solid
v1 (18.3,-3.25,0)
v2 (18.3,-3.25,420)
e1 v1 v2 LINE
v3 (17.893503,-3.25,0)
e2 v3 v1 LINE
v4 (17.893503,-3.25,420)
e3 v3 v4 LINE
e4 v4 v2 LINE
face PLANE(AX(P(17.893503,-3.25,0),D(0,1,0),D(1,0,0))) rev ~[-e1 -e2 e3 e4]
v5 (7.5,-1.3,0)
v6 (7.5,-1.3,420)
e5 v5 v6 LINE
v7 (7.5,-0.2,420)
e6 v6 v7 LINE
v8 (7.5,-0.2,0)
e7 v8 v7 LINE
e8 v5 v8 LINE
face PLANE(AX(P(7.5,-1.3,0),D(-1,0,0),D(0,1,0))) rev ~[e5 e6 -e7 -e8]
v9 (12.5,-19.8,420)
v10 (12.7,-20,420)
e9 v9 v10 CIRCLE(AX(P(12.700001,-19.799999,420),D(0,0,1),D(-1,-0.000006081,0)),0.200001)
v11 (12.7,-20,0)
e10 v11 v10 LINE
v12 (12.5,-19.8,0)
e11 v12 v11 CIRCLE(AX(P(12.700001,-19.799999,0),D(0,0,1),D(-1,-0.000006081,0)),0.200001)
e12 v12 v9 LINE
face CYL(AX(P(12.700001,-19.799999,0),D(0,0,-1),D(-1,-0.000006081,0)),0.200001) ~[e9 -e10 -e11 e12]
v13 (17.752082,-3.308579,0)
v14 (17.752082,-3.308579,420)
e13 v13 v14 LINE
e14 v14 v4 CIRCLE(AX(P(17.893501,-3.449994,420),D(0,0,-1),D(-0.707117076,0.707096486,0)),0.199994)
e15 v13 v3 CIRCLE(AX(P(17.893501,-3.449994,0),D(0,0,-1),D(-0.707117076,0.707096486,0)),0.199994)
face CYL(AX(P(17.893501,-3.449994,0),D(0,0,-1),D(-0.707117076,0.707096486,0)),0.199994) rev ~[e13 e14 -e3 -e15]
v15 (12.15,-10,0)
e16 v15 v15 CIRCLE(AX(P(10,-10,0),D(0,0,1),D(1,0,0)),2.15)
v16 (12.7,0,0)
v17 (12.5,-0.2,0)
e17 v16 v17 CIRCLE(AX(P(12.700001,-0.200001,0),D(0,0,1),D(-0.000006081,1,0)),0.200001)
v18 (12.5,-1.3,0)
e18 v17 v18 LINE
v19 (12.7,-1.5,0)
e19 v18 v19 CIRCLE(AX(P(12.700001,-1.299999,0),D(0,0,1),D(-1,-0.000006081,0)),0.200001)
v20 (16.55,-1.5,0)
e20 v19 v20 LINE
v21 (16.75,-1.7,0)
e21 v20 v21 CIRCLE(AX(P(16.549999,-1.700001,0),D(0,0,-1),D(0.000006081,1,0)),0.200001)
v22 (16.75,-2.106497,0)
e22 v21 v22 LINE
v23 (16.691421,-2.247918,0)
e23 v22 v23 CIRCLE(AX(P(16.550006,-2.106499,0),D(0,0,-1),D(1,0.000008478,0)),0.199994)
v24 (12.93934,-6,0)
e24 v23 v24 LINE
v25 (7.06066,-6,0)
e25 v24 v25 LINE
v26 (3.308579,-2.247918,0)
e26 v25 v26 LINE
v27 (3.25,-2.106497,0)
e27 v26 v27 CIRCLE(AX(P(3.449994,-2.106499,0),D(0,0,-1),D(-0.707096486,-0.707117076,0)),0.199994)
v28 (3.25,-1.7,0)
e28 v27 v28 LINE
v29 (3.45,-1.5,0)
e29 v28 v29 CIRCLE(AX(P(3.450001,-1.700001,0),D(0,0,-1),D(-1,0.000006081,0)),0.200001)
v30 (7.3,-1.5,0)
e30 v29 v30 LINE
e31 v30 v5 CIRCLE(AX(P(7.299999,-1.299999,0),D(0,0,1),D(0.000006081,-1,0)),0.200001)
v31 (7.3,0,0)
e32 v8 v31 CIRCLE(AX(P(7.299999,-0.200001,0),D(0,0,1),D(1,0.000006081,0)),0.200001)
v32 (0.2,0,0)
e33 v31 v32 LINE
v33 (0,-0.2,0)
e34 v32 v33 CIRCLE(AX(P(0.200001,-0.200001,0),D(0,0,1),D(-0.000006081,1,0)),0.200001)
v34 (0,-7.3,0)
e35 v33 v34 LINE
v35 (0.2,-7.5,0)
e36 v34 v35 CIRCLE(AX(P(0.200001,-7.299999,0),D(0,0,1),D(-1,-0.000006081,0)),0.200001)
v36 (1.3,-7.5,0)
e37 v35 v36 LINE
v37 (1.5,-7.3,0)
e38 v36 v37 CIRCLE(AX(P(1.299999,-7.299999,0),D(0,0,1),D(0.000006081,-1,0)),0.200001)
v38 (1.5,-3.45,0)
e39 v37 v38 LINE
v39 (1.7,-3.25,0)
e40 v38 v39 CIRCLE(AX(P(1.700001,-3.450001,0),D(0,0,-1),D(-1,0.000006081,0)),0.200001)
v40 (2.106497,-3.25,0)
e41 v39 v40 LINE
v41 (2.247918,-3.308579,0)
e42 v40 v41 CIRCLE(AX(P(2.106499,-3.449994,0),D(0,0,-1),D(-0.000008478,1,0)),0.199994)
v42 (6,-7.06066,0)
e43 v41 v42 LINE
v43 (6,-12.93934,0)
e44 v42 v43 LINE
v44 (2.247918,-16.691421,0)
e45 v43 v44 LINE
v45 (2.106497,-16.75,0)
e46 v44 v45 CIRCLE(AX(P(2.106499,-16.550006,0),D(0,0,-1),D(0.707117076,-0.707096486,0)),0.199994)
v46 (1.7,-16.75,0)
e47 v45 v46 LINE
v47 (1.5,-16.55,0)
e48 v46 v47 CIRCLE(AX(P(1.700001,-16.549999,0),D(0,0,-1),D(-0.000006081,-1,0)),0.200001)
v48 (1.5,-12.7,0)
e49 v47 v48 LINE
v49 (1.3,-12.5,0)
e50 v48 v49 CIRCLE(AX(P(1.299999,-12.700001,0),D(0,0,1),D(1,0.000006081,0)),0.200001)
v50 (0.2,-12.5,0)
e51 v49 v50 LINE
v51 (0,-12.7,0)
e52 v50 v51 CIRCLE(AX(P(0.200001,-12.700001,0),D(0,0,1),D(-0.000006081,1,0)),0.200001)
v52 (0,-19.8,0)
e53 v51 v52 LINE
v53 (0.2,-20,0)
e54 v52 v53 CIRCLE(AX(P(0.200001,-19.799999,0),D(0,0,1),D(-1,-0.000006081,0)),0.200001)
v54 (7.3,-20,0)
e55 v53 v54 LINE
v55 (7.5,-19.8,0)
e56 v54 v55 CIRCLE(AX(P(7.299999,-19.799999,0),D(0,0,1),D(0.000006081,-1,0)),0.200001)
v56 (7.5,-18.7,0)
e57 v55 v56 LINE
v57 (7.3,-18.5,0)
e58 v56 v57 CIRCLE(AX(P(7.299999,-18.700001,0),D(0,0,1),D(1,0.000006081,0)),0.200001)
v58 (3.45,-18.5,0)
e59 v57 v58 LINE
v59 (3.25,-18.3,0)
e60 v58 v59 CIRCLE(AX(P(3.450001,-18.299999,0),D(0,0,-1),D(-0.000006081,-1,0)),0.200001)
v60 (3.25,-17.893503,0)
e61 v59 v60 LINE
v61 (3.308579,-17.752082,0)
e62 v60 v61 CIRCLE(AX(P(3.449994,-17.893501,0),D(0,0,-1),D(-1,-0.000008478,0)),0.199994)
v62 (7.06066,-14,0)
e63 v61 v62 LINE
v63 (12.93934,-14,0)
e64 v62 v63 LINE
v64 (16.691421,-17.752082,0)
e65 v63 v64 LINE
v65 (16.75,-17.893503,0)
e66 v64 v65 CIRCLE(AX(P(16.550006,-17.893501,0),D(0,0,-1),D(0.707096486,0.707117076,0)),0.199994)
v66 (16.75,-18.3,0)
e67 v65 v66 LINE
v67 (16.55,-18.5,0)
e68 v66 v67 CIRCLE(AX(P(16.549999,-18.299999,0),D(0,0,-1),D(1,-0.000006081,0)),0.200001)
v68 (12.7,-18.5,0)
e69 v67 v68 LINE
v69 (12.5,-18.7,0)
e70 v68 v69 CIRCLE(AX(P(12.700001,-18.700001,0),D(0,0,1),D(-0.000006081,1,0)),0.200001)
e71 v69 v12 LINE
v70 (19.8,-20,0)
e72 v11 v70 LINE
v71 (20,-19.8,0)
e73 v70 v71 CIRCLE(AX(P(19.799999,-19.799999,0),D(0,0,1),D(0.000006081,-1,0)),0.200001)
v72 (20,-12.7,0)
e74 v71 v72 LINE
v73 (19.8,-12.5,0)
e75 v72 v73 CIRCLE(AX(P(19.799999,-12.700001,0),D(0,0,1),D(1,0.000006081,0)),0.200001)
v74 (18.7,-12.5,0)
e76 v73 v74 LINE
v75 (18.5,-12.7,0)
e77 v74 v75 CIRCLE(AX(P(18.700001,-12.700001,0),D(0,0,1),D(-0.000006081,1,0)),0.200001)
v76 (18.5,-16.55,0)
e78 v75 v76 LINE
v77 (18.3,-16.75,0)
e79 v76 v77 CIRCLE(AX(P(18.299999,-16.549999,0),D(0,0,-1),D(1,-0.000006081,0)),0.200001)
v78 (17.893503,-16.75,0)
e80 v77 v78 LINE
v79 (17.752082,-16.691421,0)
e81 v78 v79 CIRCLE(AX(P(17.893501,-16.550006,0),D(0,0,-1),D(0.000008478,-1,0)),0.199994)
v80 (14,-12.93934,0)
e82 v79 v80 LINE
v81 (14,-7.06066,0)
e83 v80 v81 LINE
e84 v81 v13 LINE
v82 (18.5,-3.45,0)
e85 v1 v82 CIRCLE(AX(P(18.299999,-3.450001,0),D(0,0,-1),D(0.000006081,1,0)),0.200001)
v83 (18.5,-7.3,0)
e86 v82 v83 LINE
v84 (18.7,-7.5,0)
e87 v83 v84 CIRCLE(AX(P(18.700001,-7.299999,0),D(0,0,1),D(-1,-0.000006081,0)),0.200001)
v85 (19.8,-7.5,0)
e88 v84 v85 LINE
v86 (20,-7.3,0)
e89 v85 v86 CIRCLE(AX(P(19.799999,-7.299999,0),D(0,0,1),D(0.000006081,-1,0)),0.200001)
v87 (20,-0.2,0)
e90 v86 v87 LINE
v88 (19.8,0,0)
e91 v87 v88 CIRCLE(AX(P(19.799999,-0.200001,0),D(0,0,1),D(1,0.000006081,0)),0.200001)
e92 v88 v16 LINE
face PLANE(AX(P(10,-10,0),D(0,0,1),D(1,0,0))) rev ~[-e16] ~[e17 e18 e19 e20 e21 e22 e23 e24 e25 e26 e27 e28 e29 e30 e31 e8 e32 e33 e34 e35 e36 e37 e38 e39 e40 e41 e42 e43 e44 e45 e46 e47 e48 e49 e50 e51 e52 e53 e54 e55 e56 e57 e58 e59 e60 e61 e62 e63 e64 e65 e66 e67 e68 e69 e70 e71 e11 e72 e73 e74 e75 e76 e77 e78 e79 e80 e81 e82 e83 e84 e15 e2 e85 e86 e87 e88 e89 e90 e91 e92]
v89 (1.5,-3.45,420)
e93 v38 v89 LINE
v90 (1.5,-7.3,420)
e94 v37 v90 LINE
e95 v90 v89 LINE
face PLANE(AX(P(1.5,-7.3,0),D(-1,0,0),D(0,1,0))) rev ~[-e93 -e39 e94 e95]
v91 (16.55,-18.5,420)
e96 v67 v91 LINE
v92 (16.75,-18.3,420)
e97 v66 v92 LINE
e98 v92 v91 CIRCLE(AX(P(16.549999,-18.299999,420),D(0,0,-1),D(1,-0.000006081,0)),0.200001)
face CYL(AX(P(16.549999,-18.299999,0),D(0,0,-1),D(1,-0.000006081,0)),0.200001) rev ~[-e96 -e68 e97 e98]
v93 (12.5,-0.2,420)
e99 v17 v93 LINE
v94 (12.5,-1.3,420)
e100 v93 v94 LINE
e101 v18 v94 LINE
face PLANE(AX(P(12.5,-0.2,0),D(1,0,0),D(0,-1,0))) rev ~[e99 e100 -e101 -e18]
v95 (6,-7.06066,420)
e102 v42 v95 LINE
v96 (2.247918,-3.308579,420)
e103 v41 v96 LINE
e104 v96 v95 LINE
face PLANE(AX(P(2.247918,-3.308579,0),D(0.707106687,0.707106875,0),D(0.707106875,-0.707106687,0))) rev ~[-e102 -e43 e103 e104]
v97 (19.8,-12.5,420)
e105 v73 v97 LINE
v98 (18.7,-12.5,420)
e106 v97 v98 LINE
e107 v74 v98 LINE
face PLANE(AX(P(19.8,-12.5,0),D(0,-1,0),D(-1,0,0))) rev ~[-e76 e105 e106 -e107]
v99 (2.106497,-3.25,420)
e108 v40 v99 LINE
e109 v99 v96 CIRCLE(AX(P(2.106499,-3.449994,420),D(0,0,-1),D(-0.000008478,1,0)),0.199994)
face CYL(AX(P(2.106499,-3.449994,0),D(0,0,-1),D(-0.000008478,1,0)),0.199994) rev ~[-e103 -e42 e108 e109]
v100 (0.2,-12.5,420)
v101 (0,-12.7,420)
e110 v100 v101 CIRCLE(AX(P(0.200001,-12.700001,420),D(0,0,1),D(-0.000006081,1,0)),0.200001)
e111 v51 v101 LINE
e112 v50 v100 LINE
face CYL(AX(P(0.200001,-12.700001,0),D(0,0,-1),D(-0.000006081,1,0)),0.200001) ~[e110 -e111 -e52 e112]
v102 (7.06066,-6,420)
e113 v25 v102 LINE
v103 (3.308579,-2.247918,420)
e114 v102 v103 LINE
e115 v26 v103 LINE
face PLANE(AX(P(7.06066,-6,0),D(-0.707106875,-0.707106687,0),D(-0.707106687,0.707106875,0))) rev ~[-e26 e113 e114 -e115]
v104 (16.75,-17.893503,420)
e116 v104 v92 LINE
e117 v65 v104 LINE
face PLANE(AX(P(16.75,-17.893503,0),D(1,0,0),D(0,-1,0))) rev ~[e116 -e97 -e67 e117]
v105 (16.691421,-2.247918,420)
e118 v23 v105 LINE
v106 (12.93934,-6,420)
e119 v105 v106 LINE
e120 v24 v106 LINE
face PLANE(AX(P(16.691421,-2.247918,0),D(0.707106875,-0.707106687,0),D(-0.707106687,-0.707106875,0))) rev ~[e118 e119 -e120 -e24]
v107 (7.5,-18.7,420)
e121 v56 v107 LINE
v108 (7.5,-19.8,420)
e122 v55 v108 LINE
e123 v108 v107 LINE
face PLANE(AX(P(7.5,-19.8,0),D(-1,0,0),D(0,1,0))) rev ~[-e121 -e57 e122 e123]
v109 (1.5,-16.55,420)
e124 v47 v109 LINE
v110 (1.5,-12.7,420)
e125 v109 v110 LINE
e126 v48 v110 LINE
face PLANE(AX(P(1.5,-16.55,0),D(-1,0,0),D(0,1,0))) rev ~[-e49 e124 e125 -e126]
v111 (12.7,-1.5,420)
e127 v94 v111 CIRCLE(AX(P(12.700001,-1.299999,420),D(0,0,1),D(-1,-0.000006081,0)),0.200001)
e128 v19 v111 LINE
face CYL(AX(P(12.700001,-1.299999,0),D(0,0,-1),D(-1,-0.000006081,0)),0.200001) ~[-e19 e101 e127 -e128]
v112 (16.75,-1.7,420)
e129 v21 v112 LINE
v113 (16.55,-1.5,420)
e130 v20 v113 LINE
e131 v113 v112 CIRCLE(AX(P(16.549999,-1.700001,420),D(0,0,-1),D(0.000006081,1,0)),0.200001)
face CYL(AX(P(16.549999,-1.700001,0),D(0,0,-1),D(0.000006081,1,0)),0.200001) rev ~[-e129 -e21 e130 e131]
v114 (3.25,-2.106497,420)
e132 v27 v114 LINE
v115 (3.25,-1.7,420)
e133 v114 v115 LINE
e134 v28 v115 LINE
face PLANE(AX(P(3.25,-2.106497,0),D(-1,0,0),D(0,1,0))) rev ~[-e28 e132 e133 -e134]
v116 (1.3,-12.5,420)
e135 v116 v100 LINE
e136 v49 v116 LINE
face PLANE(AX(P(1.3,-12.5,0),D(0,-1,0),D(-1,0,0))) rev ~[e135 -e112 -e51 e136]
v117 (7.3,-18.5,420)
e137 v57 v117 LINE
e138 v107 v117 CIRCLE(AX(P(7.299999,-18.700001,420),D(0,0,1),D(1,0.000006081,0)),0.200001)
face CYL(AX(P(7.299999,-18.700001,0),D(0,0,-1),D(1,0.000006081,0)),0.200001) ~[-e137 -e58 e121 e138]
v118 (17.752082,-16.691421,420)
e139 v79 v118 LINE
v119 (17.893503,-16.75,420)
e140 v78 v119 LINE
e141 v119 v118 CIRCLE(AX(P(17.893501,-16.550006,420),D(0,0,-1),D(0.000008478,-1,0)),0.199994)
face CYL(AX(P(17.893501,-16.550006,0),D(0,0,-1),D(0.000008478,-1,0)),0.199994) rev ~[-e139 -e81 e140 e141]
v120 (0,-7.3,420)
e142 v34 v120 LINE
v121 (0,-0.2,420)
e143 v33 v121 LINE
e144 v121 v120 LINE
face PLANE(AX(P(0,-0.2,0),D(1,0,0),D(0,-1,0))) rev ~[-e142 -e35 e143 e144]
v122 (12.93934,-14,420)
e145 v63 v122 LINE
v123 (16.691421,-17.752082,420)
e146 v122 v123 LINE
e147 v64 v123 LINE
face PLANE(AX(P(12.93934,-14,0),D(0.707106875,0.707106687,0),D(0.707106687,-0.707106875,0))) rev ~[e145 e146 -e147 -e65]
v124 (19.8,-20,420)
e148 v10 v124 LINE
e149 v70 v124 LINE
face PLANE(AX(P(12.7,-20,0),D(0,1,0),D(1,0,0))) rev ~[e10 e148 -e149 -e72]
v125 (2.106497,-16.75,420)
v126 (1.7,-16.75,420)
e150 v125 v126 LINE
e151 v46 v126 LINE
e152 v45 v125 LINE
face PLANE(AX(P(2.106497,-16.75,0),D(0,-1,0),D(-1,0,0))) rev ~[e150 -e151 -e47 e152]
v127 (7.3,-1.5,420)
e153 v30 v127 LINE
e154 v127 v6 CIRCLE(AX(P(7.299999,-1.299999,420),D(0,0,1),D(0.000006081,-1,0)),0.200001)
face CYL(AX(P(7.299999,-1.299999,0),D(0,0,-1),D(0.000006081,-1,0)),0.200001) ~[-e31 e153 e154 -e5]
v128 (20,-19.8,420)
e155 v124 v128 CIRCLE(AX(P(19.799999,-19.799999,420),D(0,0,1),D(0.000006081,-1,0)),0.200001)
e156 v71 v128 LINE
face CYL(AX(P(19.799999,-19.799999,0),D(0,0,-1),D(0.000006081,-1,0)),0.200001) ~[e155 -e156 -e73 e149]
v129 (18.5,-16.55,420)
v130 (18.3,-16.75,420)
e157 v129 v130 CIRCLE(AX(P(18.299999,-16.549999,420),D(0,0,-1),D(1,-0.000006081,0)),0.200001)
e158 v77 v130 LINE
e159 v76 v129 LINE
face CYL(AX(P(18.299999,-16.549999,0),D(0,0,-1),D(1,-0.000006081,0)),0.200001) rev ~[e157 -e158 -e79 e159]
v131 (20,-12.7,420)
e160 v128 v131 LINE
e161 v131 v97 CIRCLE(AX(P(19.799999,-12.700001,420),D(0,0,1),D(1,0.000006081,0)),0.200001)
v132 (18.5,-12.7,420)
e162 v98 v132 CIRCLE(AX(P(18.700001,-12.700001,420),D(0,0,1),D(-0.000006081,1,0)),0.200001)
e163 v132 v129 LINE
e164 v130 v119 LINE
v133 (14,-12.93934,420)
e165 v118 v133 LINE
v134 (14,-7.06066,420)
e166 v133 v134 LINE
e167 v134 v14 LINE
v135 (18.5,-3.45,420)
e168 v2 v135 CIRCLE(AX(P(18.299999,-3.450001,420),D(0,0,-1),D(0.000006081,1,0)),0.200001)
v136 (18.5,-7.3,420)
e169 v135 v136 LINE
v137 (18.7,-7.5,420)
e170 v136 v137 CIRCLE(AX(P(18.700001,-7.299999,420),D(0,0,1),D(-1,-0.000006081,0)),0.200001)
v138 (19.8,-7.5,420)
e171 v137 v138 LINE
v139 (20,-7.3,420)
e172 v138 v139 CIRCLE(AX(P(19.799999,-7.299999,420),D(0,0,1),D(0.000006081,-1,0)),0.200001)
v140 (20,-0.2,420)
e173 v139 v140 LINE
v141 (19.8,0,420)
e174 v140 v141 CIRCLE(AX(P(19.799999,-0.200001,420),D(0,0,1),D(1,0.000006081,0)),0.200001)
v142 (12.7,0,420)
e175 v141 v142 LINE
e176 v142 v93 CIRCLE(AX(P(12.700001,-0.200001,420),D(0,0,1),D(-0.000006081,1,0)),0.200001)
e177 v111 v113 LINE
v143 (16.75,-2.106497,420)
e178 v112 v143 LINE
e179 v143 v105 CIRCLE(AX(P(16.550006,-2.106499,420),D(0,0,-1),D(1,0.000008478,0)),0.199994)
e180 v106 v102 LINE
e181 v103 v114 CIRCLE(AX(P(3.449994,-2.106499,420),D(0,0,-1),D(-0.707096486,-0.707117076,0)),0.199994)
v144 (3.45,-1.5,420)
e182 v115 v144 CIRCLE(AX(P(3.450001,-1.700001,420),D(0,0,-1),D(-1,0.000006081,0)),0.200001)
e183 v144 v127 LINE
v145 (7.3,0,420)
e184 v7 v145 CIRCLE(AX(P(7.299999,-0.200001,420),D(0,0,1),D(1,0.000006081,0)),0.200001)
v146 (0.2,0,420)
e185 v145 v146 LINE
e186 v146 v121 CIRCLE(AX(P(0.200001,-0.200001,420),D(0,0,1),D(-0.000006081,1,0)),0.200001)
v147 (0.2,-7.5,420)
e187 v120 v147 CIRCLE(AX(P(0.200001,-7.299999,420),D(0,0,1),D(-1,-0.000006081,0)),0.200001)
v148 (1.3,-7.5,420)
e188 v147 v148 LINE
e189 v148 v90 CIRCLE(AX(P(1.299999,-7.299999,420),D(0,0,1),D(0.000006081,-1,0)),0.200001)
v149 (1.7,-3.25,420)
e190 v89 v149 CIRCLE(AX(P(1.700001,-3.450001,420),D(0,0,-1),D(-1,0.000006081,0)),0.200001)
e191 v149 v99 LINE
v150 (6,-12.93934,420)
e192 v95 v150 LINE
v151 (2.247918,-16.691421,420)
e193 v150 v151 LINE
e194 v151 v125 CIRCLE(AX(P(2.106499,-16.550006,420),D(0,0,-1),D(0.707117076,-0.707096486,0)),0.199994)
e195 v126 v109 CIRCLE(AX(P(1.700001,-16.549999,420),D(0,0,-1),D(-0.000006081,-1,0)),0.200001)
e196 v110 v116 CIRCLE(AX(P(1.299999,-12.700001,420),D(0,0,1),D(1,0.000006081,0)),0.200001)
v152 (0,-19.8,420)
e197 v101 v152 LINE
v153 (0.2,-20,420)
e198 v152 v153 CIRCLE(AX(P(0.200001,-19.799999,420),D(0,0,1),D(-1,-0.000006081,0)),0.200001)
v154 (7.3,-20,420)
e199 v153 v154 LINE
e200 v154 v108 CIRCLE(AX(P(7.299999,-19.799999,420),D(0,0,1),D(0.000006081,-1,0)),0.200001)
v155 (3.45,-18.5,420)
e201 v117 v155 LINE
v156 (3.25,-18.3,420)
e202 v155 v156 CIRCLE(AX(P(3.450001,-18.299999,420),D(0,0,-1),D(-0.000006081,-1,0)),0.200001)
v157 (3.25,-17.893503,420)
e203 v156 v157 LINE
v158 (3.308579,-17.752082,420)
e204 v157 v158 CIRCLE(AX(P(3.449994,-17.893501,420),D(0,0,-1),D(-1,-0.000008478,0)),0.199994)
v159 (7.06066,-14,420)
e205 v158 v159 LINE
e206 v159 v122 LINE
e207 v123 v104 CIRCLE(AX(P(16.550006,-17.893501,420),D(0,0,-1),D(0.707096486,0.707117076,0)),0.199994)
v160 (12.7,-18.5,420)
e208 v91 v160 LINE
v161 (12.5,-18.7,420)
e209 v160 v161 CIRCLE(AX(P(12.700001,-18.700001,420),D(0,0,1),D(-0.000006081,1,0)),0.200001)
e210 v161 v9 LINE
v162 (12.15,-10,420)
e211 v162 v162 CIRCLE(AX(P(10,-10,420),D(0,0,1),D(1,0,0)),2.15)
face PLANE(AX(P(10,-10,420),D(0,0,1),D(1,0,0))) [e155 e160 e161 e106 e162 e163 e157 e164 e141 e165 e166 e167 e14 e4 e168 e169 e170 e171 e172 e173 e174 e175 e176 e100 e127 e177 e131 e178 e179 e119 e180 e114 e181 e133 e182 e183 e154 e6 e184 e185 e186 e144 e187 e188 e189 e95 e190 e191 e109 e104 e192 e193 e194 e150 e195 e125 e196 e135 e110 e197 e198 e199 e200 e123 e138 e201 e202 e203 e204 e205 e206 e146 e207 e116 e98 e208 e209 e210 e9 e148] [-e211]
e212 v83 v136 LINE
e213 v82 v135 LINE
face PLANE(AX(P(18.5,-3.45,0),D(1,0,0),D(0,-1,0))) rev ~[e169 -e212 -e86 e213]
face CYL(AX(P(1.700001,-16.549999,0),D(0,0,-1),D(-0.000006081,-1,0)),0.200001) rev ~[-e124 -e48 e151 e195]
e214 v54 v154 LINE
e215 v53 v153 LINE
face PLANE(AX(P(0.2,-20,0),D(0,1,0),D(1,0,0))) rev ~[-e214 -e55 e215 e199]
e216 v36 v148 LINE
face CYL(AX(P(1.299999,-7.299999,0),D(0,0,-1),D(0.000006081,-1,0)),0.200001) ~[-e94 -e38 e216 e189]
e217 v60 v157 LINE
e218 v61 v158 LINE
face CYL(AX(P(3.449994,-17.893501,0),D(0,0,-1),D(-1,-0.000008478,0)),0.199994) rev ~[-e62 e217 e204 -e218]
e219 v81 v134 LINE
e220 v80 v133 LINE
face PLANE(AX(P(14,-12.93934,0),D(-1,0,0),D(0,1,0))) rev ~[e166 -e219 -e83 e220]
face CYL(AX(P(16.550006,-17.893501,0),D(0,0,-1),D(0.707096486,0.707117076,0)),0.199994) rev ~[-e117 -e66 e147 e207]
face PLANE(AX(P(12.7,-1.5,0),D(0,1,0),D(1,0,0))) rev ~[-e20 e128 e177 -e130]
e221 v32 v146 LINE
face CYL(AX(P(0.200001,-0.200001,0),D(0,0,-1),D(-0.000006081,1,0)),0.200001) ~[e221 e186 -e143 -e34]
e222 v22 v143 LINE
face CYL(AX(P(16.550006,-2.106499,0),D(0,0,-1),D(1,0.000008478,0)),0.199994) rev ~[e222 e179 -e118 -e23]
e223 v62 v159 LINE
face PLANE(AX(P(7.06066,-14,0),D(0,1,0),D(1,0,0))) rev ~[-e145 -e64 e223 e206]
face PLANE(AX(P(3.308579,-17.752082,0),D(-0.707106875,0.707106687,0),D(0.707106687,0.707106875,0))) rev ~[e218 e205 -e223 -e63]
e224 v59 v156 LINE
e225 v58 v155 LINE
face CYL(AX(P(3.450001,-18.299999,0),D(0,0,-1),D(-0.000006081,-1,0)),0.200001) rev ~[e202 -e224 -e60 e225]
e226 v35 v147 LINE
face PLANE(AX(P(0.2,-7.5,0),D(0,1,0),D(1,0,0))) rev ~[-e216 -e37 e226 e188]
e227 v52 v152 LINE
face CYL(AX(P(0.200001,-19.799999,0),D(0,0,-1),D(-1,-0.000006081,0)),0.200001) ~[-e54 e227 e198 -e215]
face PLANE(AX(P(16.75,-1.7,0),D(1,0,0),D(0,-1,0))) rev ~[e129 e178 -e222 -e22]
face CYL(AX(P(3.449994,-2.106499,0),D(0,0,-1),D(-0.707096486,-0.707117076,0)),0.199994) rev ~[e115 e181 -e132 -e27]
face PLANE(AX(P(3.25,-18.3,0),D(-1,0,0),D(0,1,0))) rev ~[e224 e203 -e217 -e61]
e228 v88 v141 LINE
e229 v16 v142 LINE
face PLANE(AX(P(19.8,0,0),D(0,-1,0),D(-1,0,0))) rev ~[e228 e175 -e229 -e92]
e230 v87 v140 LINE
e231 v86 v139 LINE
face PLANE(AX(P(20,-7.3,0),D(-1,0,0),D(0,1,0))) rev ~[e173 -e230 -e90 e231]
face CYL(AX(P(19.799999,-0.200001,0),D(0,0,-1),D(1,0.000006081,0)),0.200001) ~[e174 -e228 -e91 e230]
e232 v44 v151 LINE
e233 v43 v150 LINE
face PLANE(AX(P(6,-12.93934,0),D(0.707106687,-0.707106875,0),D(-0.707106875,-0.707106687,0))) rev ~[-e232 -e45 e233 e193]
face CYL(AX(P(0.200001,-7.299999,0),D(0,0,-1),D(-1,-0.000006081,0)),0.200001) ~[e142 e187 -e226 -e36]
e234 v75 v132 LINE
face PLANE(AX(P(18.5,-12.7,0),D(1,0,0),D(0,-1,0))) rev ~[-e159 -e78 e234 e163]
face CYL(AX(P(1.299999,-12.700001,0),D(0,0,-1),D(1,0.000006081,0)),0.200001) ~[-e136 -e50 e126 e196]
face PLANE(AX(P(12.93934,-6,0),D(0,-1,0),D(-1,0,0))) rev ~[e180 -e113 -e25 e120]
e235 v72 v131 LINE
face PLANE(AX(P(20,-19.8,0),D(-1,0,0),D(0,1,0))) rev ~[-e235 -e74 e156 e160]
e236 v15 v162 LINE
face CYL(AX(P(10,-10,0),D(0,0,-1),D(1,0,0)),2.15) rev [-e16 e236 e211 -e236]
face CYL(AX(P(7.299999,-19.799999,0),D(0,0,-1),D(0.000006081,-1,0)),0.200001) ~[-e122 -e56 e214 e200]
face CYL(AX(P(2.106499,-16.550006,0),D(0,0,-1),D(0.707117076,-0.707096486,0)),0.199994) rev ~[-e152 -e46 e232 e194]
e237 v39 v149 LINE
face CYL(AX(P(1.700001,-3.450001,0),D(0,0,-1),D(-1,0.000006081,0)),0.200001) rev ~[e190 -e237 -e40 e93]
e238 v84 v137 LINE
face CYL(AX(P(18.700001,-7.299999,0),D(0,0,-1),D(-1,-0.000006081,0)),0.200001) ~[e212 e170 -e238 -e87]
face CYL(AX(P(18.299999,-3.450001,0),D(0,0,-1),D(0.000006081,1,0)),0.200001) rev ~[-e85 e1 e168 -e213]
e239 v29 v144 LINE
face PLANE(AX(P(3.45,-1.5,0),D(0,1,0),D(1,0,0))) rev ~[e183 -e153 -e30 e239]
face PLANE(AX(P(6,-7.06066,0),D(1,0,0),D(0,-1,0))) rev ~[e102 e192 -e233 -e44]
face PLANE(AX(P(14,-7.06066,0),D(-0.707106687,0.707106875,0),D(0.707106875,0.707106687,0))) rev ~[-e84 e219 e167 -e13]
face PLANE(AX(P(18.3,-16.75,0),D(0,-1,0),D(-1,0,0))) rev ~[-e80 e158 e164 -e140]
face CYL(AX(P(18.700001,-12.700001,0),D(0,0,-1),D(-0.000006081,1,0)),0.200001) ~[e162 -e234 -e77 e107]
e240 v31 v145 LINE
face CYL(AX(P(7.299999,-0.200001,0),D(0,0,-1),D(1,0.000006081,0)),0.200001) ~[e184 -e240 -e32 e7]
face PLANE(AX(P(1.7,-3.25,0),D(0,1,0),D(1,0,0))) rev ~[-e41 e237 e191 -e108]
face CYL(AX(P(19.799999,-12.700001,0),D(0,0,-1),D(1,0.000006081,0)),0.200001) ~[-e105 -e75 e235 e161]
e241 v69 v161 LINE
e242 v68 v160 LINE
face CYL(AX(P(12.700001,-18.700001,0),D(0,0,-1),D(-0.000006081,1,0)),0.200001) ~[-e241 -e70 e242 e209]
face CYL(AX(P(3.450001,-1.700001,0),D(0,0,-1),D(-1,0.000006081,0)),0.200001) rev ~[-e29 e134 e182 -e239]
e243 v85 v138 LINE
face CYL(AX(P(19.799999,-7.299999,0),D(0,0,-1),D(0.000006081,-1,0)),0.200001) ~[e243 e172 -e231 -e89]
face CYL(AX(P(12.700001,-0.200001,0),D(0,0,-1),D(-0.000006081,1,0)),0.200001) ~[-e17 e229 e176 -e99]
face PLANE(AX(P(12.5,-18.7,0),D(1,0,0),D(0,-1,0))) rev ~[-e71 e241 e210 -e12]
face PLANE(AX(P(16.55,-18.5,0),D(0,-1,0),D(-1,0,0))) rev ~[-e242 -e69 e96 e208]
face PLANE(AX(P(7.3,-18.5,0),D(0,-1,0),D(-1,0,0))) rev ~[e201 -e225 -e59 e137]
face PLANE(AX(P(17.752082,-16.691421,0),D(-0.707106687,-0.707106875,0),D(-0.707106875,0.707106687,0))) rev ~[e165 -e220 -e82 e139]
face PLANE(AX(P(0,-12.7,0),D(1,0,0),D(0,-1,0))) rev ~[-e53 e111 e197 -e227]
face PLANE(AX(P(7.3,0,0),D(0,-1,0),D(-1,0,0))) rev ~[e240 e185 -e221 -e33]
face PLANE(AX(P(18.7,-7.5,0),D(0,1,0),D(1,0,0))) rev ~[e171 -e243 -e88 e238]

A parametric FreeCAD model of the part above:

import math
import FreeCAD as App
import Part
import Sketcher
from FreeCAD import Vector
Q = App.Units.Quantity

doc = App.newDocument("Part")
body = doc.addObject("PartDesign::Body", "Body")

sketch1 = doc.addObject("Sketcher::SketchObject", "Sketch")
body.addObject(sketch1)
sketch1.AttachmentSupport = (doc.XY_Plane, [""])
sketch1.MapMode = "FlatFace"
sketch1.addGeometry([
    Part.ArcOfCircle(Part.Circle(Vector(19.799999, -0.200001, 0), Vector(0, 0, 1), 0.200001), math.radians(0.000348), math.radians(89.999652)),
    Part.LineSegment(Vector(19.8, 0, 0), Vector(12.7, 0, 0)),
    Part.ArcOfCircle(Part.Circle(Vector(12.700001, -0.200001, 0), Vector(0, 0, 1), 0.200001), math.radians(90.000348), math.radians(179.999652)),
    Part.LineSegment(Vector(12.5, -0.2, 0), Vector(12.5, -1.3, 0)),
    Part.ArcOfCircle(Part.Circle(Vector(12.700001, -1.299999, 0), Vector(0, 0, 1), 0.200001), math.radians(-179.999652), math.radians(-90.000348)),
    Part.LineSegment(Vector(12.7, -1.5, 0), Vector(16.55, -1.5, 0)),
    Part.ArcOfCircle(Part.Circle(Vector(16.549999, -1.700001, 0), Vector(0, 0, 1), 0.200001), math.radians(0.000348), math.radians(89.999652)),
    Part.LineSegment(Vector(16.75, -1.7, 0), Vector(16.75, -2.106497, 0)),
    Part.ArcOfCircle(Part.Circle(Vector(16.550006, -2.106499, 0), Vector(0, 0, 1), 0.199994), math.radians(-45.000834), math.radians(0.000486)),
    Part.LineSegment(Vector(16.691421, -2.247918, 0), Vector(12.93934, -6, 0)),
    Part.LineSegment(Vector(12.93934, -6, 0), Vector(7.06066, -6, 0)),
    Part.LineSegment(Vector(7.06066, -6, 0), Vector(3.308579, -2.247918, 0)),
    Part.ArcOfCircle(Part.Circle(Vector(3.449994, -2.106499, 0), Vector(0, 0, 1), 0.199994), math.radians(179.999514), math.radians(225.000834)),
    Part.LineSegment(Vector(3.25, -2.106497, 0), Vector(3.25, -1.7, 0)),
    Part.ArcOfCircle(Part.Circle(Vector(3.450001, -1.700001, 0), Vector(0, 0, 1), 0.200001), math.radians(90.000348), math.radians(179.999652)),
    Part.LineSegment(Vector(3.45, -1.5, 0), Vector(7.3, -1.5, 0)),
    Part.ArcOfCircle(Part.Circle(Vector(7.299999, -1.299999, 0), Vector(0, 0, 1), 0.200001), math.radians(-89.999652), math.radians(-0.000348)),
    Part.LineSegment(Vector(7.5, -1.3, 0), Vector(7.5, -0.2, 0)),
    Part.ArcOfCircle(Part.Circle(Vector(7.299999, -0.200001, 0), Vector(0, 0, 1), 0.200001), math.radians(0.000348), math.radians(89.999652)),
    Part.LineSegment(Vector(7.3, 0, 0), Vector(0.2, 0, 0)),
    Part.ArcOfCircle(Part.Circle(Vector(0.200001, -0.200001, 0), Vector(0, 0, 1), 0.200001), math.radians(90.000348), math.radians(179.999652)),
    Part.LineSegment(Vector(0, -0.2, 0), Vector(0, -7.3, 0)),
    Part.ArcOfCircle(Part.Circle(Vector(0.200001, -7.299999, 0), Vector(0, 0, 1), 0.200001), math.radians(-179.999652), math.radians(-90.000348)),
    Part.LineSegment(Vector(0.2, -7.5, 0), Vector(1.3, -7.5, 0)),
    Part.ArcOfCircle(Part.Circle(Vector(1.299999, -7.299999, 0), Vector(0, 0, 1), 0.200001), math.radians(-89.999652), math.radians(-0.000348)),
    Part.LineSegment(Vector(1.5, -7.3, 0), Vector(1.5, -3.45, 0)),
    Part.ArcOfCircle(Part.Circle(Vector(1.700001, -3.450001, 0), Vector(0, 0, 1), 0.200001), math.radians(90.000348), math.radians(179.999652)),
    Part.LineSegment(Vector(1.7, -3.25, 0), Vector(2.106497, -3.25, 0)),
    Part.ArcOfCircle(Part.Circle(Vector(2.106499, -3.449994, 0), Vector(0, 0, 1), 0.199994), math.radians(44.999166), math.radians(90.000486)),
    Part.LineSegment(Vector(2.247918, -3.308579, 0), Vector(6, -7.06066, 0)),
    Part.LineSegment(Vector(6, -7.06066, 0), Vector(6, -12.93934, 0)),
    Part.LineSegment(Vector(6, -12.93934, 0), Vector(2.247918, -16.691421, 0)),
    Part.ArcOfCircle(Part.Circle(Vector(2.106499, -16.550006, 0), Vector(0, 0, 1), 0.199994), math.radians(-90.000486), math.radians(-44.999166)),
    Part.LineSegment(Vector(2.106497, -16.75, 0), Vector(1.7, -16.75, 0)),
    Part.ArcOfCircle(Part.Circle(Vector(1.700001, -16.549999, 0), Vector(0, 0, 1), 0.200001), math.radians(-179.999652), math.radians(-90.000348)),
    Part.LineSegment(Vector(1.5, -16.55, 0), Vector(1.5, -12.7, 0)),
    Part.ArcOfCircle(Part.Circle(Vector(1.299999, -12.700001, 0), Vector(0, 0, 1), 0.200001), math.radians(0.000348), math.radians(89.999652)),
    Part.LineSegment(Vector(1.3, -12.5, 0), Vector(0.2, -12.5, 0)),
    Part.ArcOfCircle(Part.Circle(Vector(0.200001, -12.700001, 0), Vector(0, 0, 1), 0.200001), math.radians(90.000348), math.radians(179.999652)),
    Part.LineSegment(Vector(0, -12.7, 0), Vector(0, -19.8, 0)),
    Part.ArcOfCircle(Part.Circle(Vector(0.200001, -19.799999, 0), Vector(0, 0, 1), 0.200001), math.radians(-179.999652), math.radians(-90.000348)),
    Part.LineSegment(Vector(0.2, -20, 0), Vector(7.3, -20, 0)),
    Part.ArcOfCircle(Part.Circle(Vector(7.299999, -19.799999, 0), Vector(0, 0, 1), 0.200001), math.radians(-89.999652), math.radians(-0.000348)),
    Part.LineSegment(Vector(7.5, -19.8, 0), Vector(7.5, -18.7, 0)),
    Part.ArcOfCircle(Part.Circle(Vector(7.299999, -18.700001, 0), Vector(0, 0, 1), 0.200001), math.radians(0.000348), math.radians(89.999652)),
    Part.LineSegment(Vector(7.3, -18.5, 0), Vector(3.45, -18.5, 0)),
    Part.ArcOfCircle(Part.Circle(Vector(3.450001, -18.299999, 0), Vector(0, 0, 1), 0.200001), math.radians(-179.999652), math.radians(-90.000348)),
    Part.LineSegment(Vector(3.25, -18.3, 0), Vector(3.25, -17.893503, 0)),
    Part.ArcOfCircle(Part.Circle(Vector(3.449994, -17.893501, 0), Vector(0, 0, 1), 0.199994), math.radians(134.999166), math.radians(180.000486)),
    Part.LineSegment(Vector(3.308579, -17.752082, 0), Vector(7.06066, -14, 0)),
    Part.LineSegment(Vector(7.06066, -14, 0), Vector(12.93934, -14, 0)),
    Part.LineSegment(Vector(12.93934, -14, 0), Vector(16.691421, -17.752082, 0)),
    Part.ArcOfCircle(Part.Circle(Vector(16.550006, -17.893501, 0), Vector(0, 0, 1), 0.199994), math.radians(-0.000486), math.radians(45.000834)),
    Part.LineSegment(Vector(16.75, -17.893503, 0), Vector(16.75, -18.3, 0)),
    Part.ArcOfCircle(Part.Circle(Vector(16.549999, -18.299999, 0), Vector(0, 0, 1), 0.200001), math.radians(-89.999652), math.radians(-0.000348)),
    Part.LineSegment(Vector(16.55, -18.5, 0), Vector(12.7, -18.5, 0)),
    Part.ArcOfCircle(Part.Circle(Vector(12.700001, -18.700001, 0), Vector(0, 0, 1), 0.200001), math.radians(90.000348), math.radians(179.999652)),
    Part.LineSegment(Vector(12.5, -18.7, 0), Vector(12.5, -19.8, 0)),
    Part.ArcOfCircle(Part.Circle(Vector(12.700001, -19.799999, 0), Vector(0, 0, 1), 0.200001), math.radians(-179.999652), math.radians(-90.000348)),
    Part.LineSegment(Vector(12.7, -20, 0), Vector(19.8, -20, 0)),
    Part.ArcOfCircle(Part.Circle(Vector(19.799999, -19.799999, 0), Vector(0, 0, 1), 0.200001), math.radians(-89.999652), math.radians(-0.000348)),
    Part.LineSegment(Vector(20, -19.8, 0), Vector(20, -12.7, 0)),
    Part.ArcOfCircle(Part.Circle(Vector(19.799999, -12.700001, 0), Vector(0, 0, 1), 0.200001), math.radians(0.000348), math.radians(89.999652)),
    Part.LineSegment(Vector(19.8, -12.5, 0), Vector(18.7, -12.5, 0)),
    Part.ArcOfCircle(Part.Circle(Vector(18.700001, -12.700001, 0), Vector(0, 0, 1), 0.200001), math.radians(90.000348), math.radians(179.999652)),
    Part.LineSegment(Vector(18.5, -12.7, 0), Vector(18.5, -16.55, 0)),
    Part.ArcOfCircle(Part.Circle(Vector(18.299999, -16.549999, 0), Vector(0, 0, 1), 0.200001), math.radians(-89.999652), math.radians(-0.000348)),
    Part.LineSegment(Vector(18.3, -16.75, 0), Vector(17.893503, -16.75, 0)),
    Part.ArcOfCircle(Part.Circle(Vector(17.893501, -16.550006, 0), Vector(0, 0, 1), 0.199994), math.radians(-135.000834), math.radians(-89.999514)),
    Part.LineSegment(Vector(17.752082, -16.691421, 0), Vector(14, -12.93934, 0)),
    Part.LineSegment(Vector(14, -12.93934, 0), Vector(14, -7.06066, 0)),
    Part.LineSegment(Vector(14, -7.06066, 0), Vector(17.752082, -3.308579, 0)),
    Part.ArcOfCircle(Part.Circle(Vector(17.893501, -3.449994, 0), Vector(0, 0, 1), 0.199994), math.radians(89.999514), math.radians(135.000834)),
    Part.LineSegment(Vector(17.893503, -3.25, 0), Vector(18.3, -3.25, 0)),
    Part.ArcOfCircle(Part.Circle(Vector(18.299999, -3.450001, 0), Vector(0, 0, 1), 0.200001), math.radians(0.000348), math.radians(89.999652)),
    Part.LineSegment(Vector(18.5, -3.45, 0), Vector(18.5, -7.3, 0)),
    Part.ArcOfCircle(Part.Circle(Vector(18.700001, -7.299999, 0), Vector(0, 0, 1), 0.200001), math.radians(-179.999652), math.radians(-90.000348)),
    Part.LineSegment(Vector(18.7, -7.5, 0), Vector(19.8, -7.5, 0)),
    Part.ArcOfCircle(Part.Circle(Vector(19.799999, -7.299999, 0), Vector(0, 0, 1), 0.200001), math.radians(-89.999652), math.radians(-0.000348)),
    Part.LineSegment(Vector(20, -7.3, 0), Vector(20, -0.2, 0)),
    Part.Circle(Vector(10, -10, 0), Vector(0, 0, 1), 2.15),
], False)
sketch1.addConstraint([
    Sketcher.Constraint("Coincident", 0, 2, 1, 1),
    Sketcher.Constraint("Coincident", 1, 2, 2, 1),
    Sketcher.Constraint("Coincident", 2, 2, 3, 1),
    Sketcher.Constraint("Coincident", 3, 2, 4, 1),
    Sketcher.Constraint("Coincident", 4, 2, 5, 1),
    Sketcher.Constraint("Coincident", 5, 2, 6, 2),
    Sketcher.Constraint("Coincident", 6, 1, 7, 1),
    Sketcher.Constraint("Coincident", 7, 2, 8, 2),
    Sketcher.Constraint("Coincident", 8, 1, 9, 1),
    Sketcher.Constraint("Coincident", 9, 2, 10, 1),
    Sketcher.Constraint("Coincident", 10, 2, 11, 1),
    Sketcher.Constraint("Coincident", 11, 2, 12, 2),
    Sketcher.Constraint("Coincident", 12, 1, 13, 1),
    Sketcher.Constraint("Coincident", 13, 2, 14, 2),
    Sketcher.Constraint("Coincident", 14, 1, 15, 1),
    Sketcher.Constraint("Coincident", 15, 2, 16, 1),
    Sketcher.Constraint("Coincident", 16, 2, 17, 1),
    Sketcher.Constraint("Coincident", 17, 2, 18, 1),
    Sketcher.Constraint("Coincident", 18, 2, 19, 1),
    Sketcher.Constraint("Coincident", 19, 2, 20, 1),
    Sketcher.Constraint("Coincident", 20, 2, 21, 1),
    Sketcher.Constraint("Coincident", 21, 2, 22, 1),
    Sketcher.Constraint("Coincident", 22, 2, 23, 1),
    Sketcher.Constraint("Coincident", 23, 2, 24, 1),
    Sketcher.Constraint("Coincident", 24, 2, 25, 1),
    Sketcher.Constraint("Coincident", 25, 2, 26, 2),
    Sketcher.Constraint("Coincident", 26, 1, 27, 1),
    Sketcher.Constraint("Coincident", 27, 2, 28, 2),
    Sketcher.Constraint("Coincident", 28, 1, 29, 1),
    Sketcher.Constraint("Coincident", 29, 2, 30, 1),
    Sketcher.Constraint("Coincident", 30, 2, 31, 1),
    Sketcher.Constraint("Coincident", 31, 2, 32, 2),
    Sketcher.Constraint("Coincident", 32, 1, 33, 1),
    Sketcher.Constraint("Coincident", 33, 2, 34, 2),
    Sketcher.Constraint("Coincident", 34, 1, 35, 1),
    Sketcher.Constraint("Coincident", 35, 2, 36, 1),
    Sketcher.Constraint("Coincident", 36, 2, 37, 1),
    Sketcher.Constraint("Coincident", 37, 2, 38, 1),
    Sketcher.Constraint("Coincident", 38, 2, 39, 1),
    Sketcher.Constraint("Coincident", 39, 2, 40, 1),
    Sketcher.Constraint("Coincident", 40, 2, 41, 1),
    Sketcher.Constraint("Coincident", 41, 2, 42, 1),
    Sketcher.Constraint("Coincident", 42, 2, 43, 1),
    Sketcher.Constraint("Coincident", 43, 2, 44, 1),
    Sketcher.Constraint("Coincident", 44, 2, 45, 1),
    Sketcher.Constraint("Coincident", 45, 2, 46, 2),
    Sketcher.Constraint("Coincident", 46, 1, 47, 1),
    Sketcher.Constraint("Coincident", 47, 2, 48, 2),
    Sketcher.Constraint("Coincident", 48, 1, 49, 1),
    Sketcher.Constraint("Coincident", 49, 2, 50, 1),
    Sketcher.Constraint("Coincident", 50, 2, 51, 1),
    Sketcher.Constraint("Coincident", 51, 2, 52, 2),
    Sketcher.Constraint("Coincident", 52, 1, 53, 1),
    Sketcher.Constraint("Coincident", 53, 2, 54, 2),
    Sketcher.Constraint("Coincident", 54, 1, 55, 1),
    Sketcher.Constraint("Coincident", 55, 2, 56, 1),
    Sketcher.Constraint("Coincident", 56, 2, 57, 1),
    Sketcher.Constraint("Coincident", 57, 2, 58, 1),
    Sketcher.Constraint("Coincident", 58, 2, 59, 1),
    Sketcher.Constraint("Coincident", 59, 2, 60, 1),
    Sketcher.Constraint("Coincident", 60, 2, 61, 1),
    Sketcher.Constraint("Coincident", 61, 2, 62, 1),
    Sketcher.Constraint("Coincident", 62, 2, 63, 1),
    Sketcher.Constraint("Coincident", 63, 2, 64, 1),
    Sketcher.Constraint("Coincident", 64, 2, 65, 1),
    Sketcher.Constraint("Coincident", 65, 2, 66, 2),
    Sketcher.Constraint("Coincident", 66, 1, 67, 1),
    Sketcher.Constraint("Coincident", 67, 2, 68, 2),
    Sketcher.Constraint("Coincident", 68, 1, 69, 1),
    Sketcher.Constraint("Coincident", 69, 2, 70, 1),
    Sketcher.Constraint("Coincident", 70, 2, 71, 1),
    Sketcher.Constraint("Coincident", 71, 2, 72, 2),
    Sketcher.Constraint("Coincident", 72, 1, 73, 1),
    Sketcher.Constraint("Coincident", 73, 2, 74, 2),
    Sketcher.Constraint("Coincident", 74, 1, 75, 1),
    Sketcher.Constraint("Coincident", 75, 2, 76, 1),
    Sketcher.Constraint("Coincident", 76, 2, 77, 1),
    Sketcher.Constraint("Coincident", 77, 2, 78, 1),
    Sketcher.Constraint("Coincident", 78, 2, 79, 1),
    Sketcher.Constraint("Coincident", 79, 2, 0, 1),
    Sketcher.Constraint("Horizontal", 1),
    Sketcher.Constraint("Vertical", 3),
    Sketcher.Constraint("Horizontal", 5),
    Sketcher.Constraint("Vertical", 7),
    Sketcher.Constraint("Horizontal", 10),
    Sketcher.Constraint("Vertical", 13),
    Sketcher.Constraint("Horizontal", 15),
    Sketcher.Constraint("Vertical", 17),
    Sketcher.Constraint("Horizontal", 19),
    Sketcher.Constraint("Vertical", 21),
    Sketcher.Constraint("Horizontal", 23),
    Sketcher.Constraint("Vertical", 25),
    Sketcher.Constraint("Horizontal", 27),
    Sketcher.Constraint("Vertical", 30),
    Sketcher.Constraint("Horizontal", 33),
    Sketcher.Constraint("Vertical", 35),
    Sketcher.Constraint("Horizontal", 37),
    Sketcher.Constraint("Vertical", 39),
    Sketcher.Constraint("Horizontal", 41),
    Sketcher.Constraint("Vertical", 43),
    Sketcher.Constraint("Horizontal", 45),
    Sketcher.Constraint("Vertical", 47),
    Sketcher.Constraint("Horizontal", 50),
    Sketcher.Constraint("Vertical", 53),
    Sketcher.Constraint("Horizontal", 55),
    Sketcher.Constraint("Vertical", 57),
    Sketcher.Constraint("Horizontal", 59),
    Sketcher.Constraint("Vertical", 61),
    Sketcher.Constraint("Horizontal", 63),
    Sketcher.Constraint("Vertical", 65),
    Sketcher.Constraint("Horizontal", 67),
    Sketcher.Constraint("Vertical", 70),
    Sketcher.Constraint("Horizontal", 73),
    Sketcher.Constraint("Vertical", 75),
    Sketcher.Constraint("Horizontal", 77),
    Sketcher.Constraint("Vertical", 79),
    Sketcher.Constraint("Equal", 0, 2),
    Sketcher.Constraint("Equal", 2, 4),
    Sketcher.Constraint("Equal", 4, 6),
    Sketcher.Constraint("Equal", 8, 12),
    Sketcher.Constraint("Equal", 6, 14),
    Sketcher.Constraint("Equal", 14, 16),
    Sketcher.Constraint("Equal", 16, 18),
    Sketcher.Constraint("Equal", 18, 20),
    Sketcher.Constraint("Equal", 20, 22),
    Sketcher.Constraint("Equal", 22, 24),
    Sketcher.Constraint("Equal", 24, 26),
    Sketcher.Constraint("Equal", 12, 28),
    Sketcher.Constraint("Equal", 28, 32),
    Sketcher.Constraint("Equal", 26, 34),
    Sketcher.Constraint("Equal", 34, 36),
    Sketcher.Constraint("Equal", 36, 38),
    Sketcher.Constraint("Equal", 38, 40),
    Sketcher.Constraint("Equal", 40, 42),
    Sketcher.Constraint("Equal", 42, 44),
    Sketcher.Constraint("Equal", 44, 46),
    Sketcher.Constraint("Equal", 32, 48),
    Sketcher.Constraint("Equal", 48, 52),
    Sketcher.Constraint("Equal", 46, 54),
    Sketcher.Constraint("Equal", 54, 56),
    Sketcher.Constraint("Equal", 56, 58),
    Sketcher.Constraint("Equal", 58, 60),
    Sketcher.Constraint("Equal", 60, 62),
    Sketcher.Constraint("Equal", 62, 64),
    Sketcher.Constraint("Equal", 64, 66),
    Sketcher.Constraint("Equal", 52, 68),
    Sketcher.Constraint("Equal", 68, 72),
    Sketcher.Constraint("Equal", 66, 74),
    Sketcher.Constraint("Equal", 74, 76),
    Sketcher.Constraint("Equal", 76, 78),
    Sketcher.Constraint("PointOnObject", 0, 2, -1),
    Sketcher.Constraint("PointOnObject", 18, 2, -1),
    Sketcher.Constraint("PointOnObject", 20, 2, -2),
    Sketcher.Constraint("PointOnObject", 38, 2, -2),
    Sketcher.Constraint("Perpendicular", 9, 11),
    Sketcher.Constraint("Parallel", 11, 29),
    Sketcher.Constraint("Perpendicular", 29, 31),
    Sketcher.Constraint("Parallel", 31, 49),
    Sketcher.Constraint("Perpendicular", 49, 51),
    Sketcher.Constraint("Parallel", 51, 69),
    Sketcher.Constraint("Perpendicular", 69, 71),
    Sketcher.Constraint("Horizontal", 8, 3, 12, 3),
    Sketcher.Constraint("Horizontal", 6, 3, 14, 3),
    Sketcher.Constraint("Horizontal", 48, 3, 52, 3),
    Sketcher.Constraint("Horizontal", 46, 3, 54, 3),
    Sketcher.Constraint("Horizontal", 42, 3, 58, 3),
    Sketcher.Constraint("Horizontal", 38, 3, 62, 3),
    Sketcher.Constraint("Horizontal", 34, 3, 66, 3),
    Sketcher.Constraint("Horizontal", 28, 3, 72, 3),
    Sketcher.Constraint("Horizontal", 24, 3, 76, 3),
    Sketcher.Constraint("Horizontal", 20, 3, 2, 2),
    Sketcher.Constraint("Horizontal", 16, 3, 3, 2),
    Sketcher.Constraint("Horizontal", 14, 3, 6, 1),
    Sketcher.Constraint("Horizontal", 12, 3, 7, 2),
    Sketcher.Constraint("Horizontal", 8, 1, 11, 2),
    Sketcher.Constraint("Horizontal", 7, 2, 12, 1),
    Sketcher.Constraint("Horizontal", 6, 1, 13, 2),
    Sketcher.Constraint("Horizontal", 3, 2, 16, 2),
    Sketcher.Constraint("Horizontal", 2, 2, 17, 2),
    Sketcher.Constraint("Horizontal", 17, 2, 20, 2),
    Sketcher.Constraint("Horizontal", 78, 3, 21, 2),
    Sketcher.Constraint("Horizontal", 21, 2, 24, 2),
    Sketcher.Constraint("Horizontal", 74, 3, 25, 2),
    Sketcher.Constraint("Horizontal", 66, 3, 34, 1),
    Sketcher.Constraint("Horizontal", 64, 3, 35, 2),
    Sketcher.Constraint("Horizontal", 35, 2, 38, 2),
    Sketcher.Constraint("Horizontal", 60, 3, 39, 2),
    Sketcher.Constraint("Horizontal", 39, 2, 42, 2),
    Sketcher.Constraint("Horizontal", 56, 3, 43, 2),
    Sketcher.Constraint("Horizontal", 54, 3, 46, 1),
    Sketcher.Constraint("Horizontal", 52, 3, 47, 2),
    Sketcher.Constraint("Horizontal", 48, 1, 51, 2),
    Sketcher.Constraint("Horizontal", 47, 2, 52, 1),
    Sketcher.Constraint("Horizontal", 46, 1, 53, 2),
    Sketcher.Constraint("Horizontal", 43, 2, 56, 2),
    Sketcher.Constraint("Horizontal", 42, 2, 57, 2),
    Sketcher.Constraint("Horizontal", 57, 2, 60, 2),
    Sketcher.Constraint("Horizontal", 38, 2, 61, 2),
    Sketcher.Constraint("Horizontal", 61, 2, 64, 2),
    Sketcher.Constraint("Horizontal", 34, 1, 65, 2),
    Sketcher.Constraint("Horizontal", 31, 2, 68, 1),
    Sketcher.Constraint("Horizontal", 30, 2, 69, 2),
    Sketcher.Constraint("Horizontal", 29, 2, 70, 2),
    Sketcher.Constraint("Horizontal", 28, 1, 71, 2),
    Sketcher.Constraint("Horizontal", 25, 2, 74, 1),
    Sketcher.Constraint("Horizontal", 24, 2, 75, 2),
    Sketcher.Constraint("Horizontal", 75, 2, 78, 2),
    Sketcher.Constraint("Horizontal", 20, 2, 79, 2),
    Sketcher.Constraint("Vertical", 28, 3, 32, 3),
    Sketcher.Constraint("Vertical", 26, 3, 34, 3),
    Sketcher.Constraint("Vertical", 18, 3, 42, 3),
    Sketcher.Constraint("Vertical", 14, 3, 46, 3),
    Sketcher.Constraint("Vertical", 8, 3, 52, 3),
    Sketcher.Constraint("Vertical", 4, 3, 56, 3),
    Sketcher.Constraint("Vertical", 0, 3, 60, 3),
    Sketcher.Constraint("Vertical", 68, 3, 72, 3),
    Sketcher.Constraint("Vertical", 66, 3, 74, 3),
    Sketcher.Constraint("Vertical", 78, 3, 0, 2),
    Sketcher.Constraint("Vertical", 58, 3, 1, 2),
    Sketcher.Constraint("Vertical", 1, 2, 4, 2),
    Sketcher.Constraint("Vertical", 54, 3, 5, 2),
    Sketcher.Constraint("Vertical", 46, 3, 14, 1),
    Sketcher.Constraint("Vertical", 44, 3, 15, 2),
    Sketcher.Constraint("Vertical", 15, 2, 18, 2),
    Sketcher.Constraint("Vertical", 40, 3, 19, 2),
    Sketcher.Constraint("Vertical", 19, 2, 22, 2),
    Sketcher.Constraint("Vertical", 36, 3, 23, 2),
    Sketcher.Constraint("Vertical", 34, 3, 26, 1),
    Sketcher.Constraint("Vertical", 32, 3, 27, 2),
    Sketcher.Constraint("Vertical", 28, 1, 31, 2),
    Sketcher.Constraint("Vertical", 27, 2, 32, 1),
    Sketcher.Constraint("Vertical", 26, 1, 33, 2),
    Sketcher.Constraint("Vertical", 23, 2, 36, 2),
    Sketcher.Constraint("Vertical", 22, 2, 37, 2),
    Sketcher.Constraint("Vertical", 37, 2, 40, 2),
    Sketcher.Constraint("Vertical", 18, 2, 41, 2),
    Sketcher.Constraint("Vertical", 41, 2, 44, 2),
    Sketcher.Constraint("Vertical", 14, 1, 45, 2),
    Sketcher.Constraint("Vertical", 11, 2, 48, 1),
    Sketcher.Constraint("Vertical", 10, 2, 49, 2),
    Sketcher.Constraint("Vertical", 5, 2, 54, 1),
    Sketcher.Constraint("Vertical", 4, 2, 55, 2),
    Sketcher.Constraint("Vertical", 55, 2, 58, 2),
    Sketcher.Constraint("Vertical", 0, 2, 59, 2),
    Sketcher.Constraint("Vertical", 59, 2, 62, 2),
    Sketcher.Constraint("Vertical", 76, 3, 63, 2),
    Sketcher.Constraint("Vertical", 74, 3, 66, 1),
    Sketcher.Constraint("Vertical", 72, 3, 67, 2),
    Sketcher.Constraint("Vertical", 67, 2, 72, 1),
    Sketcher.Constraint("Vertical", 66, 1, 73, 2),
    Sketcher.Constraint("Vertical", 63, 2, 76, 2),
    Sketcher.Constraint("Vertical", 62, 2, 77, 2),
    Sketcher.Constraint("Equal", 5, 15),
    Sketcher.Constraint("Equal", 1, 19),
    Sketcher.Constraint("Equal", 37, 63),
    Sketcher.Constraint("Equal", 33, 67),
    Sketcher.Constraint("Equal", 77, 3),
    Sketcher.Constraint("Equal", 73, 7),
    Sketcher.Constraint("Equal", 59, 21),
    Sketcher.Constraint("Equal", 55, 25),
    Sketcher.Constraint("Equal", 50, 30),
    Sketcher.Constraint("Equal", 25, 35),
    Sketcher.Constraint("Equal", 21, 39),
    Sketcher.Constraint("Equal", 17, 43),
    Sketcher.Constraint("Equal", 13, 47),
    Sketcher.Constraint("Equal", 11, 29),
    Sketcher.Constraint("Diameter", 80, Q("4.3 mm")),
    Sketcher.Constraint("Radius", 0, Q("0.200001 mm")),
    Sketcher.Constraint("DistanceX", 1, 2, 1, 1, Q("7.1 mm")),
    Sketcher.Constraint("DistanceX", 23, 1, 23, 2, Q("1.1 mm")),
    Sketcher.Constraint("DistanceX", -1, 1, 80, 3, Q("10 mm")),
    Sketcher.Constraint("DistanceY", 80, 3, -1, 1, Q("10 mm")),
    Sketcher.Constraint("DistanceY", 9, 2, -1, 1, Q("6 mm")),
    Sketcher.Constraint("DistanceX", -1, 1, 29, 2, Q("6 mm")),
    Sketcher.Constraint("DistanceY", 40, 2, -1, 1, Q("20 mm")),
    Sketcher.Constraint("DistanceX", 5, 1, 5, 2, Q("3.85 mm")),
    Sketcher.Constraint("Radius", 8, Q("0.199994 mm")),
    Sketcher.Constraint("DistanceX", 10, 2, 10, 1, Q("5.87868 mm")),
    Sketcher.Constraint("DistanceX", -1, 1, 8, 1, Q("16.691421 mm")),
])
pad1 = doc.addObject("PartDesign::Pad", "Pad")
body.addObject(pad1)
pad1.Profile = sketch1
pad1.Length = 420

doc.recompute()
